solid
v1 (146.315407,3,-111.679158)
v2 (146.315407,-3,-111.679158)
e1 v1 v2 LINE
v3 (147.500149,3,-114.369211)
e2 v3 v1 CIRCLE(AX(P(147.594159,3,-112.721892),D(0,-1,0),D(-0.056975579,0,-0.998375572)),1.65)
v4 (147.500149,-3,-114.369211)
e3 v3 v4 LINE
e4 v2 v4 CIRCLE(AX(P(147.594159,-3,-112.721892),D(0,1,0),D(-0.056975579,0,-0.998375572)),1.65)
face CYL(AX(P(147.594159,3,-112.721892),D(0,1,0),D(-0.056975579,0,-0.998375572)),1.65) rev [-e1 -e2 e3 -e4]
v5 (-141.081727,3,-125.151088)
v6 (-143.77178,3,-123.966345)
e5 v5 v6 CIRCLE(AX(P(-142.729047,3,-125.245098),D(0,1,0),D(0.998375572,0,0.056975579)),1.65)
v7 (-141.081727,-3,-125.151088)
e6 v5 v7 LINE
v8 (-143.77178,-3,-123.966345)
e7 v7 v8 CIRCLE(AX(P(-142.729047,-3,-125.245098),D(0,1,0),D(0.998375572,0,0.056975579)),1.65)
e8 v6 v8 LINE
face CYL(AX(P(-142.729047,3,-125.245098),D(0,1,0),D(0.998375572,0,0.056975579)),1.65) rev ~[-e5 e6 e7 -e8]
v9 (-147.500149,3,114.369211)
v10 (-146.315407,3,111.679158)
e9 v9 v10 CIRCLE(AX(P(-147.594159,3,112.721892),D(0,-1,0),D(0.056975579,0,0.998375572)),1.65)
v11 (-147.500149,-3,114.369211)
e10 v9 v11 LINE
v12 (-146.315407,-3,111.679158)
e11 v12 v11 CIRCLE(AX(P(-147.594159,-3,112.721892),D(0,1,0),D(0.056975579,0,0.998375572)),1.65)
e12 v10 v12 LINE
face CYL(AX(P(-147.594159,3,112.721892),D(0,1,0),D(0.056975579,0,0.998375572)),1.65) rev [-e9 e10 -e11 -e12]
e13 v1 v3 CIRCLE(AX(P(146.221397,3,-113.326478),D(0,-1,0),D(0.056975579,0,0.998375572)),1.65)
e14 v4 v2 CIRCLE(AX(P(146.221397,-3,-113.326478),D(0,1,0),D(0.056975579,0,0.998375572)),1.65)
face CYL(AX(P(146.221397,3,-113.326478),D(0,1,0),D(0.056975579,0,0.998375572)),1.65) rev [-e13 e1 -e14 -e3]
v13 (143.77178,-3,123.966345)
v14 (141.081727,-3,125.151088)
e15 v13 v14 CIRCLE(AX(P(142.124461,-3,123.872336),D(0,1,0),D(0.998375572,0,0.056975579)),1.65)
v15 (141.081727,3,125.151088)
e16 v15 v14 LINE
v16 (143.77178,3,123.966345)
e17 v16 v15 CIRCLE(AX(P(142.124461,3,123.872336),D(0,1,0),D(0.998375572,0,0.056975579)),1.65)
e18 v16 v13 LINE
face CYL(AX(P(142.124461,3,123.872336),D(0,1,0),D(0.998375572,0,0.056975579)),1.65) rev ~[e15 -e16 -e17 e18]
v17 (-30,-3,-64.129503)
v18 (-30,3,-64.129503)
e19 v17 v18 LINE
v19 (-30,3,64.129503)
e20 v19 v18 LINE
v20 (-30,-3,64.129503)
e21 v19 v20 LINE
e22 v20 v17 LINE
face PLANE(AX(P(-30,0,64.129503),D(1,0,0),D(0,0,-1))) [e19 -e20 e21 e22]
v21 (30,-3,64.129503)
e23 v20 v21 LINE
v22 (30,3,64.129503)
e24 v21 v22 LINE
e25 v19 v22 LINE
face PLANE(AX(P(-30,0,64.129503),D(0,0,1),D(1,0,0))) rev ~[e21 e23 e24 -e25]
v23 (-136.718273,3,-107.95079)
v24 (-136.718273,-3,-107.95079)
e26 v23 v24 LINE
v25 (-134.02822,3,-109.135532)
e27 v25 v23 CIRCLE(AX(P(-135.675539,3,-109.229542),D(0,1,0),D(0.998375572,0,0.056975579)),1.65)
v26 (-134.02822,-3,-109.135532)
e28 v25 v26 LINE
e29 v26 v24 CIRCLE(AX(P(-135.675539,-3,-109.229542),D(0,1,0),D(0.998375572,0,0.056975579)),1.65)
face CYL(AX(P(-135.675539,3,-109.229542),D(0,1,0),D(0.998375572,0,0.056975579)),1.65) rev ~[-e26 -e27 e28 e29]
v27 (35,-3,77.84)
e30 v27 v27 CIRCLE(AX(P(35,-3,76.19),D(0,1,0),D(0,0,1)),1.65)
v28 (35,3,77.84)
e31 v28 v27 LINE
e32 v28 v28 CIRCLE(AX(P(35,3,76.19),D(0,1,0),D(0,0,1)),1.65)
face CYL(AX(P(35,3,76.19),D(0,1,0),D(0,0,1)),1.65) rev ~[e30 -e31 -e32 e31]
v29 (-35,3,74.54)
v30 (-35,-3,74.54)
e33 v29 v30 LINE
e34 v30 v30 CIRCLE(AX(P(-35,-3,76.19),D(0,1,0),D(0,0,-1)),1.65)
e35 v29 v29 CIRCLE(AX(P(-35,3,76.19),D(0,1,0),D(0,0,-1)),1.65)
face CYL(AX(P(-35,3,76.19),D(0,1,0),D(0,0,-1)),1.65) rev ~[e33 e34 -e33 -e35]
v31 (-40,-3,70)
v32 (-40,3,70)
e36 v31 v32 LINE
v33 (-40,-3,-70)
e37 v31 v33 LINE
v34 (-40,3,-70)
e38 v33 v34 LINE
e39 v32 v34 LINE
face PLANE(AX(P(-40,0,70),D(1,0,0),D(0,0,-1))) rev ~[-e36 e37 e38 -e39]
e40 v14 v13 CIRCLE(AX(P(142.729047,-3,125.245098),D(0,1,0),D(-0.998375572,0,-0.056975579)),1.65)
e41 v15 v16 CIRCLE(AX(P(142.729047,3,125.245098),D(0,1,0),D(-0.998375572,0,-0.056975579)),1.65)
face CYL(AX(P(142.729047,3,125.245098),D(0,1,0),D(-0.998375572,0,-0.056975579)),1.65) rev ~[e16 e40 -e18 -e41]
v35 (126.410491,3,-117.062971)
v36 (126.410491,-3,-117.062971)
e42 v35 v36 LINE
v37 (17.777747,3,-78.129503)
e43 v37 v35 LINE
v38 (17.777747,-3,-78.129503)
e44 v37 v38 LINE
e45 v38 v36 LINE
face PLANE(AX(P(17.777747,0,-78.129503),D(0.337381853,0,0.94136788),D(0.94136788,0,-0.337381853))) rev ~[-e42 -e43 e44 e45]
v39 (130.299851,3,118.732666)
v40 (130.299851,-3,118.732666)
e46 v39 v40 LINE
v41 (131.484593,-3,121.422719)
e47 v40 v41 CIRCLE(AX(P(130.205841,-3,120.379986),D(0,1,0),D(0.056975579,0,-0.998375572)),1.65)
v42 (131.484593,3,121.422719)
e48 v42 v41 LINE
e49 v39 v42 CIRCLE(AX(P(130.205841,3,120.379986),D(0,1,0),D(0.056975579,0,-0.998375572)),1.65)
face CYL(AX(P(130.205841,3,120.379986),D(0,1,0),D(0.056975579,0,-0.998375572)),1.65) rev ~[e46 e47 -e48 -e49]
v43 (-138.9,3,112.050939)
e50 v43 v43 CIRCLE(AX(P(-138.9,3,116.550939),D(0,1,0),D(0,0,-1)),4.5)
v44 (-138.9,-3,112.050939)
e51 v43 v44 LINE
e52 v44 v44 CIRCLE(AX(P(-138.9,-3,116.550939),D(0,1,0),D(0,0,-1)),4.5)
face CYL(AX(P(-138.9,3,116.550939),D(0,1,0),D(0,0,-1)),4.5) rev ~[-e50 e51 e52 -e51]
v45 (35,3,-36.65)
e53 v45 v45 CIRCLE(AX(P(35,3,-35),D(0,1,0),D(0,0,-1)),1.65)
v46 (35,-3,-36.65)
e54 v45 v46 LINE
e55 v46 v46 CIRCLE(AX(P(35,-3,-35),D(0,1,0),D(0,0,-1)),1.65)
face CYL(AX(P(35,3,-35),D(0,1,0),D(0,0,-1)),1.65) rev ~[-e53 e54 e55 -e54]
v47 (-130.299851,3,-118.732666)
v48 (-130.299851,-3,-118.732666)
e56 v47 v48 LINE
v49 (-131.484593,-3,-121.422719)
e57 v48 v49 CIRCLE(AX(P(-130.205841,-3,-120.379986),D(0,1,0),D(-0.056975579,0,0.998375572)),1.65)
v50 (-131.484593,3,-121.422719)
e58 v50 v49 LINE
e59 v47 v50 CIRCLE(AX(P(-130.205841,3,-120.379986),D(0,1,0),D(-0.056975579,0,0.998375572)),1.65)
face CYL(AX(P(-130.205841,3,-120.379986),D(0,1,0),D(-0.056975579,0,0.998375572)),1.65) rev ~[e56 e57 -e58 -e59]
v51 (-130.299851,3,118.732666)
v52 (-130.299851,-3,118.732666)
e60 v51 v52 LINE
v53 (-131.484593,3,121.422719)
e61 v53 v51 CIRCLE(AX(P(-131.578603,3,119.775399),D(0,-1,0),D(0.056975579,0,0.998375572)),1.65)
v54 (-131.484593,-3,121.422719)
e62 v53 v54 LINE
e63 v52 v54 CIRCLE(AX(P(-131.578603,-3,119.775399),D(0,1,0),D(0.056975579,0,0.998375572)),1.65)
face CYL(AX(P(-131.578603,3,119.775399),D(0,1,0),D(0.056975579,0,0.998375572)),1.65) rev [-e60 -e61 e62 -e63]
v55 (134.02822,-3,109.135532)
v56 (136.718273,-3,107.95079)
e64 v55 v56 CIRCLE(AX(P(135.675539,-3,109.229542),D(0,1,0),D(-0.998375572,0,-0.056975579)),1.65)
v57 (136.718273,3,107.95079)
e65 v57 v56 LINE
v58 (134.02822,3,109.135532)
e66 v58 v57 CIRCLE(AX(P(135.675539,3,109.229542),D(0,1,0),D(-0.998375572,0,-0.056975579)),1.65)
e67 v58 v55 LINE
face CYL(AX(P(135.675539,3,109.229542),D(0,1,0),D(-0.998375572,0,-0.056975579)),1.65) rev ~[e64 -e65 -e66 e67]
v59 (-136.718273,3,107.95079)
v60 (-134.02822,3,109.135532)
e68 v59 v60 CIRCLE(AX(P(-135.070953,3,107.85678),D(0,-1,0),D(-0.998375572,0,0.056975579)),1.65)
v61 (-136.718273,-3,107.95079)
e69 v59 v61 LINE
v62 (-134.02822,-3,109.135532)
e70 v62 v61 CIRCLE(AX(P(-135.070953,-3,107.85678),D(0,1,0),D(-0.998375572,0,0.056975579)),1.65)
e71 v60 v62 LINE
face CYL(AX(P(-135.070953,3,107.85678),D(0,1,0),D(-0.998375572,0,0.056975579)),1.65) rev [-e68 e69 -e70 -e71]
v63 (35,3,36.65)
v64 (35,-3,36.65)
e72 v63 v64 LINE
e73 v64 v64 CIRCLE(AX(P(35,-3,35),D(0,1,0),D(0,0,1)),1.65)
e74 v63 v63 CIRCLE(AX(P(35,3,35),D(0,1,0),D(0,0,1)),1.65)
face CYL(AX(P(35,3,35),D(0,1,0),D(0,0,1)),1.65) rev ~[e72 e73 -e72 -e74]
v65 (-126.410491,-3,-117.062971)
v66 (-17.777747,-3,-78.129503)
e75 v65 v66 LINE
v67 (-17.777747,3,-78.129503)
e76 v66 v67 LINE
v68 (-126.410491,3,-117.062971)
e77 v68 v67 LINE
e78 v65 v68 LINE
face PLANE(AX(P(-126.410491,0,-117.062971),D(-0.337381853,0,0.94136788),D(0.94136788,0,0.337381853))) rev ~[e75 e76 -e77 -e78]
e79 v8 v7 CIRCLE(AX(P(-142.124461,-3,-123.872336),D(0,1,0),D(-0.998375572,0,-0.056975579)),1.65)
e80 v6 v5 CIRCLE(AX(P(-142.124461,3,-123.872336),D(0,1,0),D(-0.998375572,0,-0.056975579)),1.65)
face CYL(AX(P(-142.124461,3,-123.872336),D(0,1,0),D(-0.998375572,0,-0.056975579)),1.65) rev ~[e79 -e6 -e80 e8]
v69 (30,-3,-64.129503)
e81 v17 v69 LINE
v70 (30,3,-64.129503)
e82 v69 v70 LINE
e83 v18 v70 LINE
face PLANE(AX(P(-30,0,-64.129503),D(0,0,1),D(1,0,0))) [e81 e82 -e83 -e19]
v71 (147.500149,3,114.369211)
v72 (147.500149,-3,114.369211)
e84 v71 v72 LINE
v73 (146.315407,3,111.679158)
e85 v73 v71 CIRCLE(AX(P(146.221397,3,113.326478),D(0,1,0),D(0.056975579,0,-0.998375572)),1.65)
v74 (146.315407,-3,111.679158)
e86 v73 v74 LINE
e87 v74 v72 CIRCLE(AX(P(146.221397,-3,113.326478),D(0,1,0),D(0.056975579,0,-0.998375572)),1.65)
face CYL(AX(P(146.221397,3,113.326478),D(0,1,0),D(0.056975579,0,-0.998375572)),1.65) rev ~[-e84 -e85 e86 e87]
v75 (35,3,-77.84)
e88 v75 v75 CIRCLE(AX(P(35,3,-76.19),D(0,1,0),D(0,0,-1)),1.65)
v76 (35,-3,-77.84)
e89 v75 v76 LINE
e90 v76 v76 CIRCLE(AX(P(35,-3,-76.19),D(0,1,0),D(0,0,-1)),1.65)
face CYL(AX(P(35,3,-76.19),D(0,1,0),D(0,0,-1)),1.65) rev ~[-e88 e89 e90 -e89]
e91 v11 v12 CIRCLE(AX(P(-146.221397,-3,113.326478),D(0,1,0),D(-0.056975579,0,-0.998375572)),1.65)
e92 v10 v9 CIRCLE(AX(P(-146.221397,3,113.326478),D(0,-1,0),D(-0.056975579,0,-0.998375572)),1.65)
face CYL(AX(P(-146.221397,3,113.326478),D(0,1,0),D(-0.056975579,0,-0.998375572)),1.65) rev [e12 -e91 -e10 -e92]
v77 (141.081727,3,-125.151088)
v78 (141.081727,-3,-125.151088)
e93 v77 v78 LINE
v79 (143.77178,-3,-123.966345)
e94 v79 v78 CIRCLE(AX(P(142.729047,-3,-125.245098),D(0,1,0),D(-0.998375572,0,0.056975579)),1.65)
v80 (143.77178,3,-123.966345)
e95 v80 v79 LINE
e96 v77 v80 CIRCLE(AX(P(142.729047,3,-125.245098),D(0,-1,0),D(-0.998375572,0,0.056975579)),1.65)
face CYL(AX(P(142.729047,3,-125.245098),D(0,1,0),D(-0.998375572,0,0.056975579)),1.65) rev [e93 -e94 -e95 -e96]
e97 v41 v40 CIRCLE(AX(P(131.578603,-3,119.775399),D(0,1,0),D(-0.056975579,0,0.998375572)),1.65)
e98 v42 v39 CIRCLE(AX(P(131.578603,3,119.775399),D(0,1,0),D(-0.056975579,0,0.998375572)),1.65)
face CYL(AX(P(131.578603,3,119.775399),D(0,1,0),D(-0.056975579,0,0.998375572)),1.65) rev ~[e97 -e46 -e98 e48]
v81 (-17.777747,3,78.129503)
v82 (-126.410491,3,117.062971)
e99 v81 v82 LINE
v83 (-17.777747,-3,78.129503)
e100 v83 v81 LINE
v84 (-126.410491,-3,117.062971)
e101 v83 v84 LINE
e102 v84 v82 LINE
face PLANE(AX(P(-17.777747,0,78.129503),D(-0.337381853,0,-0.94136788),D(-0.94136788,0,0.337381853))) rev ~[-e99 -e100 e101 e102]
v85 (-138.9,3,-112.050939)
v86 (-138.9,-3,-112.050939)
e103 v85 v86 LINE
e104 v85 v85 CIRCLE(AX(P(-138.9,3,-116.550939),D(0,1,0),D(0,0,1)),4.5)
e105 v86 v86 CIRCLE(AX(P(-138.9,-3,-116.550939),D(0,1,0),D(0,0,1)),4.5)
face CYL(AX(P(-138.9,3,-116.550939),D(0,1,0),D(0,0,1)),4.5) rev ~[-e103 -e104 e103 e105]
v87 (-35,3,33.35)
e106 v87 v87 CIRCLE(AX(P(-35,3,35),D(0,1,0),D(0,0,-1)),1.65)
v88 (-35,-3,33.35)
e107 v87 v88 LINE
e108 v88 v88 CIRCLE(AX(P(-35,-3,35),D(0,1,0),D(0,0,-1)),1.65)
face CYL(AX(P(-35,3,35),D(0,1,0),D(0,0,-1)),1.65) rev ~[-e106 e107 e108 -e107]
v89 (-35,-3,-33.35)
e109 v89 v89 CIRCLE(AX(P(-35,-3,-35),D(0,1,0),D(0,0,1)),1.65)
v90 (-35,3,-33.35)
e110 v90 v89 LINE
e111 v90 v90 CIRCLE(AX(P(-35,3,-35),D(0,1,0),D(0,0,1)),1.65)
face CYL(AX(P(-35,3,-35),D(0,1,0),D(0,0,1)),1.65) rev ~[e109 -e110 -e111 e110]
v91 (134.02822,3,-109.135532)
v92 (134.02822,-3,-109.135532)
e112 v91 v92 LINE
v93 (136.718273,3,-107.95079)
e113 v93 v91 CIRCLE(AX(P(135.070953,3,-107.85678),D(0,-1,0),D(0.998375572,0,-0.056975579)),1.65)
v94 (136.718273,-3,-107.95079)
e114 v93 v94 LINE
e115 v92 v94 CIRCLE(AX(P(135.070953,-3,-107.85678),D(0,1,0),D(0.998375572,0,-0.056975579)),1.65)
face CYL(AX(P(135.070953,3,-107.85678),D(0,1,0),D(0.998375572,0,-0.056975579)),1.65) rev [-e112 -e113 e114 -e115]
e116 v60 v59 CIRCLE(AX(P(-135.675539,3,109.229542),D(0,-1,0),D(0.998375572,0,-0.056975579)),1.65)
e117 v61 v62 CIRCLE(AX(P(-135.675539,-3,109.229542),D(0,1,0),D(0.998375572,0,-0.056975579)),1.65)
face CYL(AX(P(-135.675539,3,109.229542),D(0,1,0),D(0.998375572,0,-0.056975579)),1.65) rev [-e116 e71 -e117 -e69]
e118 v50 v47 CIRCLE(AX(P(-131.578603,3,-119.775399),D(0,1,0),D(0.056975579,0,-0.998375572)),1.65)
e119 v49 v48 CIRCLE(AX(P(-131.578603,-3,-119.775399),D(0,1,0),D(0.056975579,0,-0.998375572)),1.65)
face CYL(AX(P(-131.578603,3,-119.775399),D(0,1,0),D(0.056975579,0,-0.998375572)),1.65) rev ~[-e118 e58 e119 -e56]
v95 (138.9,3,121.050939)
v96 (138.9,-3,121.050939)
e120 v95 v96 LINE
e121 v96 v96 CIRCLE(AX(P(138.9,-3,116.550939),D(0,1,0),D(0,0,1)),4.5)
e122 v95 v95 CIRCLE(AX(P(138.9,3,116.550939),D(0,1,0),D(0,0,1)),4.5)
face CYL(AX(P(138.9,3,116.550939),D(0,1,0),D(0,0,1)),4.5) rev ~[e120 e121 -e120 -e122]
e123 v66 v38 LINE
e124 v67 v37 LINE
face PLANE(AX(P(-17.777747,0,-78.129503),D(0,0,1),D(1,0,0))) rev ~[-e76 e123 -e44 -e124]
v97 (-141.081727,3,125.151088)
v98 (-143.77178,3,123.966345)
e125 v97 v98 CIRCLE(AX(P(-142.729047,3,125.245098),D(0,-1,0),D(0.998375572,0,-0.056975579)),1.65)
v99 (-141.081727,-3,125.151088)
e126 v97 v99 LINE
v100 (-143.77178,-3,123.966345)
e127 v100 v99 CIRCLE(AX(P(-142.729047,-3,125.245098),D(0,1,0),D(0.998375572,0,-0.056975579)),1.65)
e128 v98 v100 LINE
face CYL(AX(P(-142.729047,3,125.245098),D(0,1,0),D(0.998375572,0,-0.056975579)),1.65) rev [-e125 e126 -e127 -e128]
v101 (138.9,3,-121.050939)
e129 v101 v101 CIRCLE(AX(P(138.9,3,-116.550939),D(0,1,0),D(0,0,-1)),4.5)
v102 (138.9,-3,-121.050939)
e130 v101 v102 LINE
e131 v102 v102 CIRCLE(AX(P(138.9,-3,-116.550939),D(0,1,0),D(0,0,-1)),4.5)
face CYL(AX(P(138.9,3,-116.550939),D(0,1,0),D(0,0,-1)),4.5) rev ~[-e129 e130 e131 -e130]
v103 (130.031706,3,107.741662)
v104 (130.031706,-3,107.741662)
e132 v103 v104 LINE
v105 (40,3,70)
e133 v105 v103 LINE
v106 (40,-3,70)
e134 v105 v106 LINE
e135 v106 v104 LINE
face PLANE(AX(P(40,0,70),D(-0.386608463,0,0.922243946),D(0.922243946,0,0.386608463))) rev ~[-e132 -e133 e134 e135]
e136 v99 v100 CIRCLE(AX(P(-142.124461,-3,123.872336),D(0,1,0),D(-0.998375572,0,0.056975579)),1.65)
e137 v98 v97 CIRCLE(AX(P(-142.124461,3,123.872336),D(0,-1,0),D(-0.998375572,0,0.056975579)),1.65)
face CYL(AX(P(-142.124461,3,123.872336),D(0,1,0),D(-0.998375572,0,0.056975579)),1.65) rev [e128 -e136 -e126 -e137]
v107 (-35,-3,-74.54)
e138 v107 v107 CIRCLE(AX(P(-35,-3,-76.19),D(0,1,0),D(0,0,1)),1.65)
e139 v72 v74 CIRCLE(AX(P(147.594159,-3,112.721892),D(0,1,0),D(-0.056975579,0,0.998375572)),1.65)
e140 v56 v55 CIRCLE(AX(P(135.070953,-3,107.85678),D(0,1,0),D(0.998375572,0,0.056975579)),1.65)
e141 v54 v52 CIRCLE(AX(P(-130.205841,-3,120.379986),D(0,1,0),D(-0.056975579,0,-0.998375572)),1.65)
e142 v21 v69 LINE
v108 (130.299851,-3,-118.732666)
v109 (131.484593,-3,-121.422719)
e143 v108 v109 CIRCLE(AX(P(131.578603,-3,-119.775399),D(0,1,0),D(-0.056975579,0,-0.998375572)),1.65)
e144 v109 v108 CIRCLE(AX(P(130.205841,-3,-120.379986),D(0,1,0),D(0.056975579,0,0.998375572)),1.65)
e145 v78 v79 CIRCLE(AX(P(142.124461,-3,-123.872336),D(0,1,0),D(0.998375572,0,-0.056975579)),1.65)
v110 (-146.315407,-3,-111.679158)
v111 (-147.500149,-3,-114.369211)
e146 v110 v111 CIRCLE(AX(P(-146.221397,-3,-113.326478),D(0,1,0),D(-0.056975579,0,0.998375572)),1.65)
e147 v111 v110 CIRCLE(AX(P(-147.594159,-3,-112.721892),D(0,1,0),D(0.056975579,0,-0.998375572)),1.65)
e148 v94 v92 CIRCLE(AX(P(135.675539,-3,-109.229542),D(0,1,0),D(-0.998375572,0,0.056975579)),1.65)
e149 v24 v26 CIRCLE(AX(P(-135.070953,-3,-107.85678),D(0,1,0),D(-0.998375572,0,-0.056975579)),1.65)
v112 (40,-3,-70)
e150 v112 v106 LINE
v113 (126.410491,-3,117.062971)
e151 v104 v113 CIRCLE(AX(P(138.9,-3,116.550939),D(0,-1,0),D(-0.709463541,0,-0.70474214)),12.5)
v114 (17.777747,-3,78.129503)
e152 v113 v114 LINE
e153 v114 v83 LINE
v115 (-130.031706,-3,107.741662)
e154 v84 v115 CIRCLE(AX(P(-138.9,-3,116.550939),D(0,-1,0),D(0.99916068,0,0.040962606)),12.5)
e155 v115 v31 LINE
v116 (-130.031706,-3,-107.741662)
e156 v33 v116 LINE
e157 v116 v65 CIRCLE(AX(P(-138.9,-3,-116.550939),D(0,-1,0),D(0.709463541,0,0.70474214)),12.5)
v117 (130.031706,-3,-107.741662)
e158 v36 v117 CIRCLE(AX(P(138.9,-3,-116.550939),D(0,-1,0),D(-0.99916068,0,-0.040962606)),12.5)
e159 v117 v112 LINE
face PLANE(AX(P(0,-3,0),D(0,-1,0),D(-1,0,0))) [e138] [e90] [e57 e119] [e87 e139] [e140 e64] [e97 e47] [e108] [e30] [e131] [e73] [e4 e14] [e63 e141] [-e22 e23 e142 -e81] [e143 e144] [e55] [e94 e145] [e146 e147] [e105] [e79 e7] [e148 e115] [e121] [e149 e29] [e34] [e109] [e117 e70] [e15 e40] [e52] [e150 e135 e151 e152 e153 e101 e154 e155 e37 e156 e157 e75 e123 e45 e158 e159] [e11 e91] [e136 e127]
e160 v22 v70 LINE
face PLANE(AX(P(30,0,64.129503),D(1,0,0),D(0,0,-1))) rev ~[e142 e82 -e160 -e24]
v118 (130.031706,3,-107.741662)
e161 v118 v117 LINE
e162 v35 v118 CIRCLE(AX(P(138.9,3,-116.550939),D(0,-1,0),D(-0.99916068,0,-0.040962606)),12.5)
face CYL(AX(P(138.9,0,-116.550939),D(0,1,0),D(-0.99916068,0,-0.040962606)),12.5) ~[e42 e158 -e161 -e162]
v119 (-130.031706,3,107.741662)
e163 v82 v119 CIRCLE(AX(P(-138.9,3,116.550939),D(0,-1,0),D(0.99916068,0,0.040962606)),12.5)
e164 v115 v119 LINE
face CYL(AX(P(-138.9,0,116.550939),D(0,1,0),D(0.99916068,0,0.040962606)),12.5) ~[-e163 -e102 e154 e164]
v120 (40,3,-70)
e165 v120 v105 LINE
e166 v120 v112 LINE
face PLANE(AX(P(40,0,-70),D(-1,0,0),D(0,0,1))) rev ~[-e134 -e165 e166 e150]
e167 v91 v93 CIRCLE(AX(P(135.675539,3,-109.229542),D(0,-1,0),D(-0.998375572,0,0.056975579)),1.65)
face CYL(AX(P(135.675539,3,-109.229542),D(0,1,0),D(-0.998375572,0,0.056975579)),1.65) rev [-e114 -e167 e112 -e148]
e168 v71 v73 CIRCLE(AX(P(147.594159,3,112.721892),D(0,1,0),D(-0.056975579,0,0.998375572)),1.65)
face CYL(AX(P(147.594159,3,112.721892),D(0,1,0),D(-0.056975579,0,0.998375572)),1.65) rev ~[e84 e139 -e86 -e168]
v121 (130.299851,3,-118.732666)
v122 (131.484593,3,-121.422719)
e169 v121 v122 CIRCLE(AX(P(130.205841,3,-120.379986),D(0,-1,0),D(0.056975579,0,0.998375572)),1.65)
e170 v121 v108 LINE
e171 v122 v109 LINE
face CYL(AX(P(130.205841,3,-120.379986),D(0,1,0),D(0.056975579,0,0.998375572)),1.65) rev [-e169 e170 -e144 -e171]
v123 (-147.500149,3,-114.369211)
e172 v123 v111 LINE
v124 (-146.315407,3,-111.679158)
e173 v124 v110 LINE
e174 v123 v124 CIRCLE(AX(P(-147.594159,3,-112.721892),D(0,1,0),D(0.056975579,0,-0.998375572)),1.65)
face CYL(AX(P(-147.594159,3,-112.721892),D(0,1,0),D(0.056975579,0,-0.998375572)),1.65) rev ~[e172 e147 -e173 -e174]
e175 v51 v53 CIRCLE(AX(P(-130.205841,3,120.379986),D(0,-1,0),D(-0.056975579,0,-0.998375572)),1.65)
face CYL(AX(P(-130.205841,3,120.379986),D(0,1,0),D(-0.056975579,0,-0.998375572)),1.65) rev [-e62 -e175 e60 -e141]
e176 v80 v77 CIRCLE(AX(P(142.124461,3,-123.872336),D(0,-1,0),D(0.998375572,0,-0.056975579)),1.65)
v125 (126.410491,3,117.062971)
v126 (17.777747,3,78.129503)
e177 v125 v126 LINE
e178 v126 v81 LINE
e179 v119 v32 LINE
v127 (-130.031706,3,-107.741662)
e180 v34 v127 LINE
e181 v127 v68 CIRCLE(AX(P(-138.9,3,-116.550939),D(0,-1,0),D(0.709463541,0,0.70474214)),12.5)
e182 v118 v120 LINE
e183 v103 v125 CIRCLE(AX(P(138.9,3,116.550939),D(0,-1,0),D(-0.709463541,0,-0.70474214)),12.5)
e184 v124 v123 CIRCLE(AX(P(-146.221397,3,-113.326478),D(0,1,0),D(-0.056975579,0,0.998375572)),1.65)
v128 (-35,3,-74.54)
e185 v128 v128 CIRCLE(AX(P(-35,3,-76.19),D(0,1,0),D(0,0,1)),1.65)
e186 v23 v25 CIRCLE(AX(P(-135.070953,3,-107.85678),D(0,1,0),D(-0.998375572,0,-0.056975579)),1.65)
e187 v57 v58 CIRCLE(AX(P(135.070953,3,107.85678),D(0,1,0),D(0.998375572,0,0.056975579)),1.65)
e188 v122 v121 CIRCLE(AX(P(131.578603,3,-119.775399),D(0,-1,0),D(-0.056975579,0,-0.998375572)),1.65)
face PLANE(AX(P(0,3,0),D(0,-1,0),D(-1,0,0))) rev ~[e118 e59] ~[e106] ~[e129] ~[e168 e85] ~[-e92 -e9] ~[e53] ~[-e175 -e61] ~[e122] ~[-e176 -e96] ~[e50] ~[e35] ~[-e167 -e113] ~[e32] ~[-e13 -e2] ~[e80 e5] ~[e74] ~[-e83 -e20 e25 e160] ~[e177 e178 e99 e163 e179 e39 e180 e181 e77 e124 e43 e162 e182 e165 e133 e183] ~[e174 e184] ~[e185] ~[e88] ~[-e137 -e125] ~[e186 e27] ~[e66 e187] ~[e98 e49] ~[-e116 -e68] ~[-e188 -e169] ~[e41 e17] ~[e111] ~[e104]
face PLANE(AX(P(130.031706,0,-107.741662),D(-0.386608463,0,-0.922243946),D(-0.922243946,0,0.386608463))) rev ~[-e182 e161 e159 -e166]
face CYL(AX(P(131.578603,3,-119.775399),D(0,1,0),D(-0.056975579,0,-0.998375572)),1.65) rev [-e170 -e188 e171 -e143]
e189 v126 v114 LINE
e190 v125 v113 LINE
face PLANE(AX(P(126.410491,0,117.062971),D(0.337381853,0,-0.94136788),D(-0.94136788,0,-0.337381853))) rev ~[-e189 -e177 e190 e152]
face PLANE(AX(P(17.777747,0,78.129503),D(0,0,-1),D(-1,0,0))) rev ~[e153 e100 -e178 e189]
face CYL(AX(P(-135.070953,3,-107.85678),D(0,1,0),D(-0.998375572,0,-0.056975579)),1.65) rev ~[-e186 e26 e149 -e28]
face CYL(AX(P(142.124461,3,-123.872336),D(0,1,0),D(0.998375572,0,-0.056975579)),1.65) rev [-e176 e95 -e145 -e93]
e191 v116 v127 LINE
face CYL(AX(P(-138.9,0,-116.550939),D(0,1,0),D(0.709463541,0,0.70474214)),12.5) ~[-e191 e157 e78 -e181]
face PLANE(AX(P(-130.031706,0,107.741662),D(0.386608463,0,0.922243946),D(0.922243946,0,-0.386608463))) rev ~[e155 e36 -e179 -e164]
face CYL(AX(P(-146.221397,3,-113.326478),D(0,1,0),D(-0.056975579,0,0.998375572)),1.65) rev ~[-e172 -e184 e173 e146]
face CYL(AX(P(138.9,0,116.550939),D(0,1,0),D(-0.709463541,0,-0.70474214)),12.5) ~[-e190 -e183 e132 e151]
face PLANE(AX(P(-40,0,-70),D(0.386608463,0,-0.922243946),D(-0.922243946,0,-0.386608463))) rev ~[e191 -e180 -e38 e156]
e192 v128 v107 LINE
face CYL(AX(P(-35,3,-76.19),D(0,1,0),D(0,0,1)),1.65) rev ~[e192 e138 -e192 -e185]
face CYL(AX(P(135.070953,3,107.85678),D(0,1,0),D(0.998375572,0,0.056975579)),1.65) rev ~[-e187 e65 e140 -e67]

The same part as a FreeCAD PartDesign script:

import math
import FreeCAD as App
import Part
import Sketcher
from FreeCAD import Vector

doc = App.newDocument("Part")
body = doc.addObject("PartDesign::Body", "Body")

# Sketch on XZ plane
sketch1 = doc.addObject("Sketcher::SketchObject", "Sketch")
body.addObject(sketch1)
sketch1.AttachmentSupport = (doc.XZ_Plane, [""])
sketch1.MapMode = "FlatFace"
sketch1.addGeometry(Part.LineSegment(Vector(18, -78, 0), Vector(-18, -78, 0)), False)
sketch1.addGeometry(Part.LineSegment(Vector(-18, -78, 0), Vector(-126, -117, 0)), False)
sketch1.addGeometry(Part.ArcOfCircle(Part.Circle(Vector(-139, -117, 0), Vector(0, 0, 1), 12), math.radians(45), math.radians(358)), False)
sketch1.addGeometry(Part.LineSegment(Vector(-130, -108, 0), Vector(-40, -70, 0)), False)
sketch1.addGeometry(Part.LineSegment(Vector(-40, -70, 0), Vector(-40, 70, 0)), False)
sketch1.addGeometry(Part.LineSegment(Vector(-40, 70, 0), Vector(-130, 108, 0)), False)
sketch1.addGeometry(Part.ArcOfCircle(Part.Circle(Vector(-139, 117, 0), Vector(0, 0, 1), 12), math.radians(2), math.radians(315)), False)
sketch1.addGeometry(Part.LineSegment(Vector(-126, 117, 0), Vector(-18, 78, 0)), False)
sketch1.addGeometry(Part.LineSegment(Vector(-18, 78, 0), Vector(18, 78, 0)), False)
sketch1.addGeometry(Part.LineSegment(Vector(18, 78, 0), Vector(126, 117, 0)), False)
sketch1.addGeometry(Part.ArcOfCircle(Part.Circle(Vector(139, 117, 0), Vector(0, 0, 1), 12), math.radians(-135), math.radians(178)), False)
sketch1.addGeometry(Part.LineSegment(Vector(130, 108, 0), Vector(40, 70, 0)), False)
sketch1.addGeometry(Part.LineSegment(Vector(40, 70, 0), Vector(40, -70, 0)), False)
sketch1.addGeometry(Part.LineSegment(Vector(40, -70, 0), Vector(130, -108, 0)), False)
sketch1.addGeometry(Part.ArcOfCircle(Part.Circle(Vector(139, -117, 0), Vector(0, 0, 1), 12), math.radians(-178), math.radians(135)), False)
sketch1.addGeometry(Part.LineSegment(Vector(126, -117, 0), Vector(18, -78, 0)), False)
sketch1.addGeometry(Part.LineSegment(Vector(-30, 64, 0), Vector(-30, -64, 0)), False)
sketch1.addGeometry(Part.LineSegment(Vector(-30, -64, 0), Vector(30, -64, 0)), False)
sketch1.addGeometry(Part.LineSegment(Vector(30, -64, 0), Vector(30, 64, 0)), False)
sketch1.addGeometry(Part.LineSegment(Vector(30, 64, 0), Vector(-30, 64, 0)), False)
sketch1.addConstraint(Sketcher.Constraint("Coincident", 0, 2, 1, 1))
sketch1.addConstraint(Sketcher.Constraint("Coincident", 1, 2, 2, 2))
sketch1.addConstraint(Sketcher.Constraint("Coincident", 2, 1, 3, 1))
sketch1.addConstraint(Sketcher.Constraint("Coincident", 3, 2, 4, 1))
sketch1.addConstraint(Sketcher.Constraint("Coincident", 4, 2, 5, 1))
sketch1.addConstraint(Sketcher.Constraint("Coincident", 5, 2, 6, 2))
sketch1.addConstraint(Sketcher.Constraint("Coincident", 6, 1, 7, 1))
sketch1.addConstraint(Sketcher.Constraint("Coincident", 7, 2, 8, 1))
sketch1.addConstraint(Sketcher.Constraint("Coincident", 8, 2, 9, 1))
sketch1.addConstraint(Sketcher.Constraint("Coincident", 9, 2, 10, 2))
sketch1.addConstraint(Sketcher.Constraint("Coincident", 10, 1, 11, 1))
sketch1.addConstraint(Sketcher.Constraint("Coincident", 11, 2, 12, 1))
sketch1.addConstraint(Sketcher.Constraint("Coincident", 12, 2, 13, 1))
sketch1.addConstraint(Sketcher.Constraint("Coincident", 13, 2, 14, 2))
sketch1.addConstraint(Sketcher.Constraint("Coincident", 14, 1, 15, 1))
sketch1.addConstraint(Sketcher.Constraint("Coincident", 15, 2, 0, 1))
sketch1.addConstraint(Sketcher.Constraint("Coincident", 16, 2, 17, 1))
sketch1.addConstraint(Sketcher.Constraint("Coincident", 17, 2, 18, 1))
sketch1.addConstraint(Sketcher.Constraint("Coincident", 18, 2, 19, 1))
sketch1.addConstraint(Sketcher.Constraint("Coincident", 19, 2, 16, 1))
sketch1.addConstraint(Sketcher.Constraint("Horizontal", 0))
sketch1.addConstraint(Sketcher.Constraint("Vertical", 4))
sketch1.addConstraint(Sketcher.Constraint("Horizontal", 8))
sketch1.addConstraint(Sketcher.Constraint("Vertical", 12))
sketch1.addConstraint(Sketcher.Constraint("Vertical", 16))
sketch1.addConstraint(Sketcher.Constraint("Horizontal", 17))
sketch1.addConstraint(Sketcher.Constraint("Vertical", 18))
sketch1.addConstraint(Sketcher.Constraint("Horizontal", 19))
sketch1.addConstraint(Sketcher.Constraint("Equal", 2, 6))
sketch1.addConstraint(Sketcher.Constraint("Equal", 6, 10))
sketch1.addConstraint(Sketcher.Constraint("Equal", 10, 14))
sketch1.addConstraint(Sketcher.Constraint("Symmetric", 2, 3, 10, 3, -1, 1))
sketch1.addConstraint(Sketcher.Constraint("Symmetric", 6, 3, 14, 3, -1, 1))
sketch1.addConstraint(Sketcher.Constraint("Symmetric", 0, 2, 8, 2, -1, 1))
sketch1.addConstraint(Sketcher.Constraint("Symmetric", 3, 2, 11, 2, -1, 1))
sketch1.addConstraint(Sketcher.Constraint("Symmetric", 16, 2, 18, 2, -1, 1))
sketch1.addConstraint(Sketcher.Constraint("Symmetric", 6, 3, 10, 3, -2))
sketch1.addConstraint(Sketcher.Constraint("Parallel", 1, 9))
sketch1.addConstraint(Sketcher.Constraint("Parallel", 3, 11))
sketch1.addConstraint(Sketcher.Constraint("Parallel", 5, 13))
sketch1.addConstraint(Sketcher.Constraint("Parallel", 7, 15))
sketch1.addConstraint(Sketcher.Constraint("Horizontal", 6, 1, 9, 2))
sketch1.addConstraint(Sketcher.Constraint("Horizontal", 5, 2, 10, 1))
sketch1.addConstraint(Sketcher.Constraint("Horizontal", 4, 2, 11, 2))
sketch1.addConstraint(Sketcher.Constraint("Horizontal", 3, 2, 12, 2))
sketch1.addConstraint(Sketcher.Constraint("Horizontal", 1, 2, 14, 1))
sketch1.addConstraint(Sketcher.Constraint("Vertical", 0, 2, 7, 2))
sketch1.addConstraint(Sketcher.Constraint("Radius", 2, 12.5))
sketch1.addConstraint(Sketcher.Constraint("DistanceX", 17, 1, 17, 2, 60.0))
sketch1.addConstraint(Sketcher.Constraint("DistanceY", 4, 1, 4, 2, 140.0))
sketch1.addConstraint(Sketcher.Constraint("DistanceX", 3, 2, -1, 1, 40.0))
sketch1.addConstraint(Sketcher.Constraint("DistanceY", 0, 2, 16, 2, 14.0))
sketch1.addConstraint(Sketcher.Constraint("DistanceX", 2, 3, -1, 1, 138.9))
sketch1.addConstraint(Sketcher.Constraint("DistanceY", 2, 1, 6, 3, 224.292601))
sketch1.addConstraint(Sketcher.Constraint("Distance", 3, 97.622442))
sketch1.addConstraint(Sketcher.Constraint("DistanceX", 0, 2, 0, 1, 35.555494))
sketch1.addConstraint(Sketcher.Constraint("DistanceY", 16, 2, 16, 1, 128.259006))
sketch1.addConstraint(Sketcher.Constraint("DistanceX", 1, 2, -1, 1, 126.410491))
pad1 = doc.addObject("PartDesign::Pad", "Pad")
body.addObject(pad1)
pad1.Profile = sketch1
pad1.Length = 6
pad1.Midplane = True

# Sketch on XZ plane
sketch2 = doc.addObject("Sketcher::SketchObject", "Sketch001")
body.addObject(sketch2)
sketch2.AttachmentSupport = (doc.XZ_Plane, [""])
sketch2.MapMode = "FlatFace"
sketch2.AttachmentOffset = App.Placement(Vector(0, 0, -3), App.Rotation())
sketch2.addGeometry(Part.Circle(Vector(-138.9, -116.6, 0), Vector(0, 0, 1), 4.5), False)
sketch2.addGeometry(Part.Circle(Vector(138.9, -116.6, 0), Vector(0, 0, 1), 4.5), False)
sketch2.addGeometry(Part.Circle(Vector(138.9, 116.6, 0), Vector(0, 0, 1), 4.5), False)
sketch2.addGeometry(Part.Circle(Vector(-138.9, 116.6, 0), Vector(0, 0, 1), 4.5), False)
sketch2.addGeometry(Part.ArcOfCircle(Part.Circle(Vector(-142.7, -125.2, 0), Vector(0, 0, 1), 1.6), math.radians(129), math.radians(363)), False)
sketch2.addGeometry(Part.ArcOfCircle(Part.Circle(Vector(-142.1, -123.9, 0), Vector(0, 0, 1), 1.6), math.radians(-51), math.radians(183)), False)
sketch2.addGeometry(Part.ArcOfCircle(Part.Circle(Vector(-130.2, -120.4, 0), Vector(0, 0, 1), 1.6), math.radians(-141), math.radians(93)), False)
sketch2.addGeometry(Part.ArcOfCircle(Part.Circle(Vector(-131.6, -119.8, 0), Vector(0, 0, 1), 1.6), math.radians(39), math.radians(273)), False)
sketch2.addGeometry(Part.ArcOfCircle(Part.Circle(Vector(-135.1, -107.9, 0), Vector(0, 0, 1), 1.6), math.radians(-51), math.radians(183)), False)
sketch2.addGeometry(Part.ArcOfCircle(Part.Circle(Vector(-135.7, -109.2, 0), Vector(0, 0, 1), 1.6), math.radians(129), math.radians(363)), False)
sketch2.addGeometry(Part.ArcOfCircle(Part.Circle(Vector(-147.6, -112.7, 0), Vector(0, 0, 1), 1.6), math.radians(39), math.radians(273)), False)
sketch2.addGeometry(Part.ArcOfCircle(Part.Circle(Vector(-146.2, -113.3, 0), Vector(0, 0, 1), 1.6), math.radians(-141), math.radians(93)), False)
sketch2.addGeometry(Part.ArcOfCircle(Part.Circle(Vector(146.2, -113.3, 0), Vector(0, 0, 1), 1.6), math.radians(87), math.radians(321)), False)
sketch2.addGeometry(Part.ArcOfCircle(Part.Circle(Vector(147.6, -112.7, 0), Vector(0, 0, 1), 1.6), math.radians(-93), math.radians(141)), False)
sketch2.addGeometry(Part.ArcOfCircle(Part.Circle(Vector(135.7, -109.2, 0), Vector(0, 0, 1), 1.6), math.radians(177), math.radians(411)), False)
sketch2.addGeometry(Part.ArcOfCircle(Part.Circle(Vector(135.1, -107.9, 0), Vector(0, 0, 1), 1.6), math.radians(-3), math.radians(231)), False)
sketch2.addGeometry(Part.ArcOfCircle(Part.Circle(Vector(131.6, -119.8, 0), Vector(0, 0, 1), 1.6), math.radians(-93), math.radians(141)), False)
sketch2.addGeometry(Part.ArcOfCircle(Part.Circle(Vector(130.2, -120.4, 0), Vector(0, 0, 1), 1.6), math.radians(87), math.radians(321)), False)
sketch2.addGeometry(Part.ArcOfCircle(Part.Circle(Vector(142.1, -123.9, 0), Vector(0, 0, 1), 1.6), math.radians(-3), math.radians(231)), False)
sketch2.addGeometry(Part.ArcOfCircle(Part.Circle(Vector(142.7, -125.2, 0), Vector(0, 0, 1), 1.6), math.radians(177), math.radians(411)), False)
sketch2.addGeometry(Part.ArcOfCircle(Part.Circle(Vector(142.7, 125.2, 0), Vector(0, 0, 1), 1.6), math.radians(-51), math.radians(183)), False)
sketch2.addGeometry(Part.ArcOfCircle(Part.Circle(Vector(142.1, 123.9, 0), Vector(0, 0, 1), 1.6), math.radians(129), math.radians(363)), False)
sketch2.addGeometry(Part.ArcOfCircle(Part.Circle(Vector(130.2, 120.4, 0), Vector(0, 0, 1), 1.6), math.radians(39), math.radians(273)), False)
sketch2.addGeometry(Part.ArcOfCircle(Part.Circle(Vector(131.6, 119.8, 0), Vector(0, 0, 1), 1.6), math.radians(-141), math.radians(93)), False)
sketch2.addGeometry(Part.ArcOfCircle(Part.Circle(Vector(135.1, 107.9, 0), Vector(0, 0, 1), 1.6), math.radians(129), math.radians(363)), False)
sketch2.addGeometry(Part.ArcOfCircle(Part.Circle(Vector(135.7, 109.2, 0), Vector(0, 0, 1), 1.6), math.radians(-51), math.radians(183)), False)
sketch2.addGeometry(Part.ArcOfCircle(Part.Circle(Vector(147.6, 112.7, 0), Vector(0, 0, 1), 1.6), math.radians(-141), math.radians(93)), False)
sketch2.addGeometry(Part.ArcOfCircle(Part.Circle(Vector(146.2, 113.3, 0), Vector(0, 0, 1), 1.6), math.radians(39), math.radians(273)), False)
sketch2.addGeometry(Part.ArcOfCircle(Part.Circle(Vector(-146.2, 113.3, 0), Vector(0, 0, 1), 1.6), math.radians(-93), math.radians(141)), False)
sketch2.addGeometry(Part.ArcOfCircle(Part.Circle(Vector(-147.6, 112.7, 0), Vector(0, 0, 1), 1.6), math.radians(87), math.radians(321)), False)
sketch2.addGeometry(Part.ArcOfCircle(Part.Circle(Vector(-135.7, 109.2, 0), Vector(0, 0, 1), 1.6), math.radians(-3), math.radians(231)), False)
sketch2.addGeometry(Part.ArcOfCircle(Part.Circle(Vector(-135.1, 107.9, 0), Vector(0, 0, 1), 1.6), math.radians(177), math.radians(411)), False)
sketch2.addGeometry(Part.ArcOfCircle(Part.Circle(Vector(-131.6, 119.8, 0), Vector(0, 0, 1), 1.6), math.radians(87), math.radians(321)), False)
sketch2.addGeometry(Part.ArcOfCircle(Part.Circle(Vector(-130.2, 120.4, 0), Vector(0, 0, 1), 1.6), math.radians(-93), math.radians(141)), False)
sketch2.addGeometry(Part.ArcOfCircle(Part.Circle(Vector(-142.1, 123.9, 0), Vector(0, 0, 1), 1.6), math.radians(177), math.radians(411)), False)
sketch2.addGeometry(Part.ArcOfCircle(Part.Circle(Vector(-142.7, 125.2, 0), Vector(0, 0, 1), 1.6), math.radians(-3), math.radians(231)), False)
sketch2.addConstraint(Sketcher.Constraint("Coincident", 4, 1, 5, 2))
sketch2.addConstraint(Sketcher.Constraint("Coincident", 5, 1, 4, 2))
sketch2.addConstraint(Sketcher.Constraint("Coincident", 6, 1, 7, 2))
sketch2.addConstraint(Sketcher.Constraint("Coincident", 7, 1, 6, 2))
sketch2.addConstraint(Sketcher.Constraint("Coincident", 8, 1, 9, 2))
sketch2.addConstraint(Sketcher.Constraint("Coincident", 9, 1, 8, 2))
sketch2.addConstraint(Sketcher.Constraint("Coincident", 10, 1, 11, 2))
sketch2.addConstraint(Sketcher.Constraint("Coincident", 11, 1, 10, 2))
sketch2.addConstraint(Sketcher.Constraint("Coincident", 12, 1, 13, 2))
sketch2.addConstraint(Sketcher.Constraint("Coincident", 13, 1, 12, 2))
sketch2.addConstraint(Sketcher.Constraint("Coincident", 14, 1, 15, 2))
sketch2.addConstraint(Sketcher.Constraint("Coincident", 15, 1, 14, 2))
sketch2.addConstraint(Sketcher.Constraint("Coincident", 16, 1, 17, 2))
sketch2.addConstraint(Sketcher.Constraint("Coincident", 17, 1, 16, 2))
sketch2.addConstraint(Sketcher.Constraint("Coincident", 18, 1, 19, 2))
sketch2.addConstraint(Sketcher.Constraint("Coincident", 19, 1, 18, 2))
sketch2.addConstraint(Sketcher.Constraint("Coincident", 20, 1, 21, 2))
sketch2.addConstraint(Sketcher.Constraint("Coincident", 21, 1, 20, 2))
sketch2.addConstraint(Sketcher.Constraint("Coincident", 22, 1, 23, 2))
sketch2.addConstraint(Sketcher.Constraint("Coincident", 23, 1, 22, 2))
sketch2.addConstraint(Sketcher.Constraint("Coincident", 24, 1, 25, 2))
sketch2.addConstraint(Sketcher.Constraint("Coincident", 25, 1, 24, 2))
sketch2.addConstraint(Sketcher.Constraint("Coincident", 26, 1, 27, 2))
sketch2.addConstraint(Sketcher.Constraint("Coincident", 27, 1, 26, 2))
sketch2.addConstraint(Sketcher.Constraint("Coincident", 28, 1, 29, 2))
sketch2.addConstraint(Sketcher.Constraint("Coincident", 29, 1, 28, 2))
sketch2.addConstraint(Sketcher.Constraint("Coincident", 30, 1, 31, 2))
sketch2.addConstraint(Sketcher.Constraint("Coincident", 31, 1, 30, 2))
sketch2.addConstraint(Sketcher.Constraint("Coincident", 32, 1, 33, 2))
sketch2.addConstraint(Sketcher.Constraint("Coincident", 33, 1, 32, 2))
sketch2.addConstraint(Sketcher.Constraint("Coincident", 34, 1, 35, 2))
sketch2.addConstraint(Sketcher.Constraint("Coincident", 35, 1, 34, 2))
sketch2.addConstraint(Sketcher.Constraint("Equal", 0, 1))
sketch2.addConstraint(Sketcher.Constraint("Equal", 1, 2))
sketch2.addConstraint(Sketcher.Constraint("Equal", 2, 3))
sketch2.addConstraint(Sketcher.Constraint("Equal", 4, 5))
sketch2.addConstraint(Sketcher.Constraint("Equal", 5, 6))
sketch2.addConstraint(Sketcher.Constraint("Equal", 6, 7))
sketch2.addConstraint(Sketcher.Constraint("Equal", 7, 8))
sketch2.addConstraint(Sketcher.Constraint("Equal", 8, 9))
sketch2.addConstraint(Sketcher.Constraint("Equal", 9, 10))
sketch2.addConstraint(Sketcher.Constraint("Equal", 10, 11))
sketch2.addConstraint(Sketcher.Constraint("Equal", 11, 12))
sketch2.addConstraint(Sketcher.Constraint("Equal", 12, 13))
sketch2.addConstraint(Sketcher.Constraint("Equal", 13, 14))
sketch2.addConstraint(Sketcher.Constraint("Equal", 14, 15))
sketch2.addConstraint(Sketcher.Constraint("Equal", 15, 16))
sketch2.addConstraint(Sketcher.Constraint("Equal", 16, 17))
sketch2.addConstraint(Sketcher.Constraint("Equal", 17, 18))
sketch2.addConstraint(Sketcher.Constraint("Equal", 18, 19))
sketch2.addConstraint(Sketcher.Constraint("Equal", 19, 20))
sketch2.addConstraint(Sketcher.Constraint("Equal", 20, 21))
sketch2.addConstraint(Sketcher.Constraint("Equal", 21, 22))
sketch2.addConstraint(Sketcher.Constraint("Equal", 22, 23))
sketch2.addConstraint(Sketcher.Constraint("Equal", 23, 24))
sketch2.addConstraint(Sketcher.Constraint("Equal", 24, 25))
sketch2.addConstraint(Sketcher.Constraint("Equal", 25, 26))
sketch2.addConstraint(Sketcher.Constraint("Equal", 26, 27))
sketch2.addConstraint(Sketcher.Constraint("Equal", 27, 28))
sketch2.addConstraint(Sketcher.Constraint("Equal", 28, 29))
sketch2.addConstraint(Sketcher.Constraint("Equal", 29, 30))
sketch2.addConstraint(Sketcher.Constraint("Equal", 30, 31))
sketch2.addConstraint(Sketcher.Constraint("Equal", 31, 32))
sketch2.addConstraint(Sketcher.Constraint("Equal", 32, 33))
sketch2.addConstraint(Sketcher.Constraint("Equal", 33, 34))
sketch2.addConstraint(Sketcher.Constraint("Equal", 34, 35))
sketch2.addConstraint(Sketcher.Constraint("Symmetric", 0, 3, 2, 3, -1, 1))
sketch2.addConstraint(Sketcher.Constraint("Symmetric", 1, 3, 3, 3, -1, 1))
sketch2.addConstraint(Sketcher.Constraint("Symmetric", 4, 3, 20, 3, -1, 1))
sketch2.addConstraint(Sketcher.Constraint("Symmetric", 5, 3, 21, 3, -1, 1))
sketch2.addConstraint(Sketcher.Constraint("Symmetric", 6, 3, 22, 3, -1, 1))
sketch2.addConstraint(Sketcher.Constraint("Symmetric", 7, 3, 23, 3, -1, 1))
sketch2.addConstraint(Sketcher.Constraint("Symmetric", 8, 3, 24, 3, -1, 1))
sketch2.addConstraint(Sketcher.Constraint("Symmetric", 9, 3, 25, 3, -1, 1))
sketch2.addConstraint(Sketcher.Constraint("Symmetric", 10, 3, 26, 3, -1, 1))
sketch2.addConstraint(Sketcher.Constraint("Symmetric", 11, 3, 27, 3, -1, 1))
sketch2.addConstraint(Sketcher.Constraint("Symmetric", 12, 3, 28, 3, -1, 1))
sketch2.addConstraint(Sketcher.Constraint("Symmetric", 13, 3, 29, 3, -1, 1))
sketch2.addConstraint(Sketcher.Constraint("Symmetric", 14, 3, 30, 3, -1, 1))
sketch2.addConstraint(Sketcher.Constraint("Symmetric", 15, 3, 31, 3, -1, 1))
sketch2.addConstraint(Sketcher.Constraint("Symmetric", 16, 3, 32, 3, -1, 1))
sketch2.addConstraint(Sketcher.Constraint("Symmetric", 17, 3, 33, 3, -1, 1))
sketch2.addConstraint(Sketcher.Constraint("Symmetric", 18, 3, 34, 3, -1, 1))
sketch2.addConstraint(Sketcher.Constraint("Symmetric", 19, 3, 35, 3, -1, 1))
sketch2.addConstraint(Sketcher.Constraint("Symmetric", 0, 3, 1, 3, -2))
sketch2.addConstraint(Sketcher.Constraint("Symmetric", 11, 3, 12, 3, -2))
sketch2.addConstraint(Sketcher.Constraint("Symmetric", 10, 3, 13, 3, -2))
sketch2.addConstraint(Sketcher.Constraint("Symmetric", 9, 3, 14, 3, -2))
sketch2.addConstraint(Sketcher.Constraint("Symmetric", 8, 3, 15, 3, -2))
sketch2.addConstraint(Sketcher.Constraint("Symmetric", 7, 3, 16, 3, -2))
sketch2.addConstraint(Sketcher.Constraint("Symmetric", 6, 3, 17, 3, -2))
sketch2.addConstraint(Sketcher.Constraint("Symmetric", 5, 3, 18, 3, -2))
sketch2.addConstraint(Sketcher.Constraint("Symmetric", 4, 3, 19, 3, -2))
sketch2.addConstraint(Sketcher.Constraint("Diameter", 0, 9.0))
sketch2.addConstraint(Sketcher.Constraint("Radius", 4, 1.65))
sketch2.addConstraint(Sketcher.Constraint("DistanceX", 0, 3, -1, 1, 138.9))
sketch2.addConstraint(Sketcher.Constraint("DistanceY", 7, 3, -1, 1, 119.775399))
sketch2.addConstraint(Sketcher.Constraint("DistanceY", 0, 3, -1, 1, 116.550939))
sketch2.addConstraint(Sketcher.Constraint("DistanceX", 5, 3, -1, 1, 142.124461))
sketch2.addConstraint(Sketcher.Constraint("DistanceX", 6, 3, -1, 1, 130.205841))
sketch2.addConstraint(Sketcher.Constraint("DistanceY", 8, 3, -1, 1, 107.85678))
sketch2.addConstraint(Sketcher.Constraint("DistanceX", 9, 3, -1, 1, 135.675539))
sketch2.addConstraint(Sketcher.Constraint("DistanceY", 9, 3, -1, 1, 109.229542))
sketch2.addConstraint(Sketcher.Constraint("DistanceX", 10, 3, -1, 1, 147.594159))
sketch2.addConstraint(Sketcher.Constraint("DistanceY", 10, 3, -1, 1, 112.721892))
sketch2.addConstraint(Sketcher.Constraint("DistanceY", 11, 3, -1, 1, 113.326478))
sketch2.addConstraint(Sketcher.Constraint("DistanceX", 4, 1, -1, 1, 143.77178))
sketch2.addConstraint(Sketcher.Constraint("DistanceY", 6, 1, -1, 1, 121.422719))
sketch2.addConstraint(Sketcher.Constraint("DistanceX", 8, 1, -1, 1, 134.02822))
sketch2.addConstraint(Sketcher.Constraint("DistanceY", 10, 1, -1, 1, 111.679158))
sketch2.addConstraint(Sketcher.Constraint("DistanceX", 4, 3, -1, 1, 142.729047))
sketch2.addConstraint(Sketcher.Constraint("DistanceY", 4, 3, -1, 1, 125.245098))
sketch2.addConstraint(Sketcher.Constraint("DistanceY", 6, 3, -1, 1, 120.379986))
pocket1 = doc.addObject("PartDesign::Pocket", "Pocket")
body.addObject(pocket1)
pocket1.Profile = sketch2
pocket1.Type = "ThroughAll"
pocket1.Reversed = True

# Sketch on XZ plane
sketch3 = doc.addObject("Sketcher::SketchObject", "Sketch002")
body.addObject(sketch3)
sketch3.AttachmentSupport = (doc.XZ_Plane, [""])
sketch3.MapMode = "FlatFace"
sketch3.AttachmentOffset = App.Placement(Vector(0, 0, -3), App.Rotation())
sketch3.addGeometry(Part.Circle(Vector(-35, -76.2, 0), Vector(0, 0, 1), 1.6), False)
sketch3.addGeometry(Part.Circle(Vector(-35, -35, 0), Vector(0, 0, 1), 1.6), False)
sketch3.addGeometry(Part.Circle(Vector(-35, 35, 0), Vector(0, 0, 1), 1.6), False)
sketch3.addGeometry(Part.Circle(Vector(-35, 76.2, 0), Vector(0, 0, 1), 1.6), False)
sketch3.addGeometry(Part.Circle(Vector(35, 76.2, 0), Vector(0, 0, 1), 1.6), False)
sketch3.addGeometry(Part.Circle(Vector(35, 35, 0), Vector(0, 0, 1), 1.6), False)
sketch3.addGeometry(Part.Circle(Vector(35, -35, 0), Vector(0, 0, 1), 1.6), False)
sketch3.addGeometry(Part.Circle(Vector(35, -76.2, 0), Vector(0, 0, 1), 1.6), False)
sketch3.addConstraint(Sketcher.Constraint("Equal", 0, 1))
sketch3.addConstraint(Sketcher.Constraint("Equal", 1, 2))
sketch3.addConstraint(Sketcher.Constraint("Equal", 2, 3))
sketch3.addConstraint(Sketcher.Constraint("Equal", 3, 4))
sketch3.addConstraint(Sketcher.Constraint("Equal", 4, 5))
sketch3.addConstraint(Sketcher.Constraint("Equal", 5, 6))
sketch3.addConstraint(Sketcher.Constraint("Equal", 6, 7))
sketch3.addConstraint(Sketcher.Constraint("Symmetric", 0, 3, 4, 3, -1, 1))
sketch3.addConstraint(Sketcher.Constraint("Symmetric", 1, 3, 5, 3, -1, 1))
sketch3.addConstraint(Sketcher.Constraint("Symmetric", 2, 3, 6, 3, -1, 1))
sketch3.addConstraint(Sketcher.Constraint("Symmetric", 3, 3, 7, 3, -1, 1))
sketch3.addConstraint(Sketcher.Constraint("Symmetric", 3, 3, 4, 3, -2))
sketch3.addConstraint(Sketcher.Constraint("Symmetric", 2, 3, 5, 3, -2))
sketch3.addConstraint(Sketcher.Constraint("Vertical", 0, 3, 1, 3))
sketch3.addConstraint(Sketcher.Constraint("Diameter", 0, 3.3))
sketch3.addConstraint(Sketcher.Constraint("DistanceX", 0, 3, -1, 1, 35.0))
sketch3.addConstraint(Sketcher.Constraint("DistanceY", 1, 3, -1, 1, 35.0))
sketch3.addConstraint(Sketcher.Constraint("DistanceY", 0, 3, -1, 1, 76.19))
pocket2 = doc.addObject("PartDesign::Pocket", "Pocket001")
body.addObject(pocket2)
pocket2.Profile = sketch3
pocket2.Type = "ThroughAll"
pocket2.Reversed = True

doc.recompute()
